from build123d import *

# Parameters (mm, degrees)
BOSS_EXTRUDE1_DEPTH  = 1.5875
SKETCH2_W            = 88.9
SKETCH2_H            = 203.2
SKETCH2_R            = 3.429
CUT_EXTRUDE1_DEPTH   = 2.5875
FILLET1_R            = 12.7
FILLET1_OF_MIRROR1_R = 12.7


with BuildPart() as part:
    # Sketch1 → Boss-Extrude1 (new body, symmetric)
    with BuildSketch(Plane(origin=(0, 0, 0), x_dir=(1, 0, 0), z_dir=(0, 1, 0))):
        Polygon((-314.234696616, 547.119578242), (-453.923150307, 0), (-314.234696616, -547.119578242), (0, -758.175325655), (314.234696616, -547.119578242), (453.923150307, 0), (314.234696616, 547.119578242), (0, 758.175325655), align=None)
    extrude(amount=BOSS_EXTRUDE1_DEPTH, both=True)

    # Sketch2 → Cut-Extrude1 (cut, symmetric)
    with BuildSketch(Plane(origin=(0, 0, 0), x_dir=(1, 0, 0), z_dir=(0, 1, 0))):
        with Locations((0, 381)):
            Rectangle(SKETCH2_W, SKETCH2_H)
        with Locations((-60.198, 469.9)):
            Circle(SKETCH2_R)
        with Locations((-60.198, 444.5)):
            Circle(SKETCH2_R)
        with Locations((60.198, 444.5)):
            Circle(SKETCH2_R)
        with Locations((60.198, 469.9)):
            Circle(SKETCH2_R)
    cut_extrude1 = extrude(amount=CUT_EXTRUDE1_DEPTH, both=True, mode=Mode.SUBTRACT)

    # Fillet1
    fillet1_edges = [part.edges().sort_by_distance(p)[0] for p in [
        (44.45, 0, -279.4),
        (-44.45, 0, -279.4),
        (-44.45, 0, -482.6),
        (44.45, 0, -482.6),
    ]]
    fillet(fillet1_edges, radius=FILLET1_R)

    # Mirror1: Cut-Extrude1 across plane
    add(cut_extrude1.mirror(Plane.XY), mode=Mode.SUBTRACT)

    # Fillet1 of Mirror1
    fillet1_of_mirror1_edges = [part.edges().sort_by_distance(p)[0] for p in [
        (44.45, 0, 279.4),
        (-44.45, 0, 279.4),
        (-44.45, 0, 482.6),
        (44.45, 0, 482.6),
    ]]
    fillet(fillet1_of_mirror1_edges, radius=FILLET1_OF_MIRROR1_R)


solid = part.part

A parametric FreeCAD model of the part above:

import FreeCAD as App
import Part
import Sketcher

V = App.Vector
Q = App.Units.Quantity


def edges_at(feature, points):
    """Names of the edges that pass closest to the given points."""
    edges = feature.Shape.Edges
    near = lambda p: min(range(len(edges)), key=lambda i: edges[i].distToShape(Part.Vertex(*p))[0])
    return sorted({f"Edge{near(p) + 1}" for p in points})

doc = App.newDocument("Part")
params = doc.addObject("Spreadsheet::Sheet", "Params")
for row, (alias, value) in enumerate([
    ("pad1_length", "0.125 in"),
    ("sketch2_diameter", "0.27 in"),
    ("sketch2_height", "8 in"),
    ("sketch2_width", "3.5 in"),
    ("pocket1_length", "5.175 mm"),
    ("fillet_radius", "0.5 in"),
    ("fillet2_radius", "0.5 in"),
], start=1):
    params.set(f"A{row}", alias)
    params.set(f"B{row}", "=" + value)
    params.setAlias(f"B{row}", alias)

body = doc.addObject("PartDesign::Body", "Body")

# Sketch on XZ plane
sketch1 = body.newObject("Sketcher::SketchObject", "Sketch")
sketch1.AttachmentSupport = (doc.getObject("XZ_Plane"), [""])
sketch1.MapMode = "FlatFace"
sketch1.addGeometry([
    Part.LineSegment(V(-314, -547, 0), V(-454, 0, 0)),  # 0
    Part.LineSegment(V(-454, 0, 0), V(-314, 547, 0)),  # 1
    Part.LineSegment(V(-314, 547, 0), V(0, 758, 0)),  # 2
    Part.LineSegment(V(0, 758, 0), V(314, 547, 0)),  # 3
    Part.LineSegment(V(314, 547, 0), V(454, 0, 0)),  # 4
    Part.LineSegment(V(454, 0, 0), V(314, -547, 0)),  # 5
    Part.LineSegment(V(314, -547, 0), V(0, -758, 0)),  # 6
    Part.LineSegment(V(0, -758, 0), V(-314, -547, 0)),  # 7
], False)
sketch1.addConstraint([
    Sketcher.Constraint("Coincident", 0, 2, 1, 1),
    Sketcher.Constraint("Coincident", 1, 2, 2, 1),
    Sketcher.Constraint("Coincident", 2, 2, 3, 1),
    Sketcher.Constraint("Coincident", 3, 2, 4, 1),
    Sketcher.Constraint("Coincident", 4, 2, 5, 1),
    Sketcher.Constraint("Coincident", 5, 2, 6, 1),
    Sketcher.Constraint("Coincident", 6, 2, 7, 1),
    Sketcher.Constraint("Coincident", 7, 2, 0, 1),
    Sketcher.Constraint("Symmetric", 0, 2, 4, 2, -1, 1),
    Sketcher.Constraint("Symmetric", 1, 2, 5, 2, -1, 1),
    Sketcher.Constraint("Symmetric", 2, 2, 6, 2, -1, 1),
    Sketcher.Constraint("Symmetric", 3, 2, 7, 2, -1, 1),
    Sketcher.Constraint("Symmetric", 1, 2, 3, 2, -2),
    Sketcher.Constraint("PointOnObject", 0, 2, -1),
    Sketcher.Constraint("PointOnObject", 2, 2, -2),
    Sketcher.Constraint("DistanceX", 0, 2, 4, 2, 907.846301),
    Sketcher.Constraint("Distance", 2, 378.533979),
    Sketcher.Constraint("DistanceY", -1, 1, 1, 2, 547.119578),
    Sketcher.Constraint("Distance", 0, 564.670432),
])
pad1 = body.newObject("PartDesign::Pad", "Pad")
pad1.Profile = sketch1
pad1.setExpression("Length", "Params.pad1_length")
pad1.Midplane = True

# Sketch on XZ plane
sketch2 = body.newObject("Sketcher::SketchObject", "Sketch001")
sketch2.AttachmentSupport = (doc.getObject("XZ_Plane"), [""])
sketch2.MapMode = "FlatFace"
sketch2.addGeometry([
    Part.LineSegment(V(-44.5, -482.6, 0), V(-44.5, -279.4, 0)),  # 0
    Part.LineSegment(V(-44.5, -279.4, 0), V(44.5, -279.4, 0)),  # 1
    Part.LineSegment(V(44.5, -279.4, 0), V(44.5, -482.6, 0)),  # 2
    Part.LineSegment(V(44.5, -482.6, 0), V(-44.5, -482.6, 0)),  # 3
    Part.Circle(V(-60.2, -469.9, 0), V(0, 0, 1), 3.4),  # 4
    Part.Circle(V(-60.2, -444.5, 0), V(0, 0, 1), 3.4),  # 5
    Part.Circle(V(60.2, -444.5, 0), V(0, 0, 1), 3.4),  # 6
    Part.Circle(V(60.2, -469.9, 0), V(0, 0, 1), 3.4),  # 7
], False)
sketch2.addConstraint([
    Sketcher.Constraint("Coincident", 0, 2, 1, 1),
    Sketcher.Constraint("Coincident", 1, 2, 2, 1),
    Sketcher.Constraint("Coincident", 2, 2, 3, 1),
    Sketcher.Constraint("Coincident", 3, 2, 0, 1),
    Sketcher.Constraint("Vertical", 0),
    Sketcher.Constraint("Horizontal", 1),
    Sketcher.Constraint("Vertical", 2),
    Sketcher.Constraint("Horizontal", 3),
    Sketcher.Constraint("Equal", 4, 5),
    Sketcher.Constraint("Equal", 5, 6),
    Sketcher.Constraint("Equal", 6, 7),
    Sketcher.Constraint("Symmetric", 5, 3, 6, 3, -2),
    Sketcher.Constraint("Symmetric", 4, 3, 7, 3, -2),
    Sketcher.Constraint("Vertical", 4, 3, 5, 3),
    Sketcher.Constraint("Diameter", 4, Q("0.27 in")),
    Sketcher.Constraint("DistanceY", 0, 1, 0, 2, Q("8 in")),
    Sketcher.Constraint("DistanceX", 1, 1, 1, 2, Q("3.5 in")),
    Sketcher.Constraint("DistanceY", 0, 2, -1, 1, Q("11 in")),
    Sketcher.Constraint("DistanceY", 4, 3, 5, 3, Q("1 in")),
    Sketcher.Constraint("DistanceY", 4, 3, -1, 1, Q("18.5 in")),
    Sketcher.Constraint("DistanceX", 4, 3, -1, 1, Q("2.37 in")),
    Sketcher.Constraint("DistanceX", 0, 2, -1, 1, Q("1.75 in")),
])
sketch2.setExpression("Constraints[14]", "Params.sketch2_diameter")
sketch2.setExpression("Constraints[15]", "Params.sketch2_height")
sketch2.setExpression("Constraints[16]", "Params.sketch2_width")
pocket1 = body.newObject("PartDesign::Pocket", "Pocket")
pocket1.Profile = sketch2
pocket1.setExpression("Length", "Params.pocket1_length")
pocket1.Midplane = True
doc.recompute()

fillet = body.newObject("PartDesign::Fillet", "Fillet")
fillet.Base = (pocket1, edges_at(pocket1, [
    (44.45, 0, -279.4),
    (-44.45, 0, -279.4),
    (-44.45, 0, -482.6),
    (44.45, 0, -482.6),
]))
fillet.setExpression("Radius", "Params.fillet_radius")
doc.recompute()

mirrored = body.newObject("PartDesign::Mirrored", "Mirrored")
mirrored.Originals = [pocket1]
mirrored.MirrorPlane = (doc.getObject("XY_Plane"), [""])
body.Tip = mirrored
doc.recompute()

fillet2 = body.newObject("PartDesign::Fillet", "Fillet001")
fillet2.Base = (mirrored, edges_at(mirrored, [
    (44.45, 0, 279.4),
    (-44.45, 0, 279.4),
    (-44.45, 0, 482.6),
    (44.45, 0, 482.6),
]))
fillet2.setExpression("Radius", "Params.fillet2_radius")

doc.recompute()
